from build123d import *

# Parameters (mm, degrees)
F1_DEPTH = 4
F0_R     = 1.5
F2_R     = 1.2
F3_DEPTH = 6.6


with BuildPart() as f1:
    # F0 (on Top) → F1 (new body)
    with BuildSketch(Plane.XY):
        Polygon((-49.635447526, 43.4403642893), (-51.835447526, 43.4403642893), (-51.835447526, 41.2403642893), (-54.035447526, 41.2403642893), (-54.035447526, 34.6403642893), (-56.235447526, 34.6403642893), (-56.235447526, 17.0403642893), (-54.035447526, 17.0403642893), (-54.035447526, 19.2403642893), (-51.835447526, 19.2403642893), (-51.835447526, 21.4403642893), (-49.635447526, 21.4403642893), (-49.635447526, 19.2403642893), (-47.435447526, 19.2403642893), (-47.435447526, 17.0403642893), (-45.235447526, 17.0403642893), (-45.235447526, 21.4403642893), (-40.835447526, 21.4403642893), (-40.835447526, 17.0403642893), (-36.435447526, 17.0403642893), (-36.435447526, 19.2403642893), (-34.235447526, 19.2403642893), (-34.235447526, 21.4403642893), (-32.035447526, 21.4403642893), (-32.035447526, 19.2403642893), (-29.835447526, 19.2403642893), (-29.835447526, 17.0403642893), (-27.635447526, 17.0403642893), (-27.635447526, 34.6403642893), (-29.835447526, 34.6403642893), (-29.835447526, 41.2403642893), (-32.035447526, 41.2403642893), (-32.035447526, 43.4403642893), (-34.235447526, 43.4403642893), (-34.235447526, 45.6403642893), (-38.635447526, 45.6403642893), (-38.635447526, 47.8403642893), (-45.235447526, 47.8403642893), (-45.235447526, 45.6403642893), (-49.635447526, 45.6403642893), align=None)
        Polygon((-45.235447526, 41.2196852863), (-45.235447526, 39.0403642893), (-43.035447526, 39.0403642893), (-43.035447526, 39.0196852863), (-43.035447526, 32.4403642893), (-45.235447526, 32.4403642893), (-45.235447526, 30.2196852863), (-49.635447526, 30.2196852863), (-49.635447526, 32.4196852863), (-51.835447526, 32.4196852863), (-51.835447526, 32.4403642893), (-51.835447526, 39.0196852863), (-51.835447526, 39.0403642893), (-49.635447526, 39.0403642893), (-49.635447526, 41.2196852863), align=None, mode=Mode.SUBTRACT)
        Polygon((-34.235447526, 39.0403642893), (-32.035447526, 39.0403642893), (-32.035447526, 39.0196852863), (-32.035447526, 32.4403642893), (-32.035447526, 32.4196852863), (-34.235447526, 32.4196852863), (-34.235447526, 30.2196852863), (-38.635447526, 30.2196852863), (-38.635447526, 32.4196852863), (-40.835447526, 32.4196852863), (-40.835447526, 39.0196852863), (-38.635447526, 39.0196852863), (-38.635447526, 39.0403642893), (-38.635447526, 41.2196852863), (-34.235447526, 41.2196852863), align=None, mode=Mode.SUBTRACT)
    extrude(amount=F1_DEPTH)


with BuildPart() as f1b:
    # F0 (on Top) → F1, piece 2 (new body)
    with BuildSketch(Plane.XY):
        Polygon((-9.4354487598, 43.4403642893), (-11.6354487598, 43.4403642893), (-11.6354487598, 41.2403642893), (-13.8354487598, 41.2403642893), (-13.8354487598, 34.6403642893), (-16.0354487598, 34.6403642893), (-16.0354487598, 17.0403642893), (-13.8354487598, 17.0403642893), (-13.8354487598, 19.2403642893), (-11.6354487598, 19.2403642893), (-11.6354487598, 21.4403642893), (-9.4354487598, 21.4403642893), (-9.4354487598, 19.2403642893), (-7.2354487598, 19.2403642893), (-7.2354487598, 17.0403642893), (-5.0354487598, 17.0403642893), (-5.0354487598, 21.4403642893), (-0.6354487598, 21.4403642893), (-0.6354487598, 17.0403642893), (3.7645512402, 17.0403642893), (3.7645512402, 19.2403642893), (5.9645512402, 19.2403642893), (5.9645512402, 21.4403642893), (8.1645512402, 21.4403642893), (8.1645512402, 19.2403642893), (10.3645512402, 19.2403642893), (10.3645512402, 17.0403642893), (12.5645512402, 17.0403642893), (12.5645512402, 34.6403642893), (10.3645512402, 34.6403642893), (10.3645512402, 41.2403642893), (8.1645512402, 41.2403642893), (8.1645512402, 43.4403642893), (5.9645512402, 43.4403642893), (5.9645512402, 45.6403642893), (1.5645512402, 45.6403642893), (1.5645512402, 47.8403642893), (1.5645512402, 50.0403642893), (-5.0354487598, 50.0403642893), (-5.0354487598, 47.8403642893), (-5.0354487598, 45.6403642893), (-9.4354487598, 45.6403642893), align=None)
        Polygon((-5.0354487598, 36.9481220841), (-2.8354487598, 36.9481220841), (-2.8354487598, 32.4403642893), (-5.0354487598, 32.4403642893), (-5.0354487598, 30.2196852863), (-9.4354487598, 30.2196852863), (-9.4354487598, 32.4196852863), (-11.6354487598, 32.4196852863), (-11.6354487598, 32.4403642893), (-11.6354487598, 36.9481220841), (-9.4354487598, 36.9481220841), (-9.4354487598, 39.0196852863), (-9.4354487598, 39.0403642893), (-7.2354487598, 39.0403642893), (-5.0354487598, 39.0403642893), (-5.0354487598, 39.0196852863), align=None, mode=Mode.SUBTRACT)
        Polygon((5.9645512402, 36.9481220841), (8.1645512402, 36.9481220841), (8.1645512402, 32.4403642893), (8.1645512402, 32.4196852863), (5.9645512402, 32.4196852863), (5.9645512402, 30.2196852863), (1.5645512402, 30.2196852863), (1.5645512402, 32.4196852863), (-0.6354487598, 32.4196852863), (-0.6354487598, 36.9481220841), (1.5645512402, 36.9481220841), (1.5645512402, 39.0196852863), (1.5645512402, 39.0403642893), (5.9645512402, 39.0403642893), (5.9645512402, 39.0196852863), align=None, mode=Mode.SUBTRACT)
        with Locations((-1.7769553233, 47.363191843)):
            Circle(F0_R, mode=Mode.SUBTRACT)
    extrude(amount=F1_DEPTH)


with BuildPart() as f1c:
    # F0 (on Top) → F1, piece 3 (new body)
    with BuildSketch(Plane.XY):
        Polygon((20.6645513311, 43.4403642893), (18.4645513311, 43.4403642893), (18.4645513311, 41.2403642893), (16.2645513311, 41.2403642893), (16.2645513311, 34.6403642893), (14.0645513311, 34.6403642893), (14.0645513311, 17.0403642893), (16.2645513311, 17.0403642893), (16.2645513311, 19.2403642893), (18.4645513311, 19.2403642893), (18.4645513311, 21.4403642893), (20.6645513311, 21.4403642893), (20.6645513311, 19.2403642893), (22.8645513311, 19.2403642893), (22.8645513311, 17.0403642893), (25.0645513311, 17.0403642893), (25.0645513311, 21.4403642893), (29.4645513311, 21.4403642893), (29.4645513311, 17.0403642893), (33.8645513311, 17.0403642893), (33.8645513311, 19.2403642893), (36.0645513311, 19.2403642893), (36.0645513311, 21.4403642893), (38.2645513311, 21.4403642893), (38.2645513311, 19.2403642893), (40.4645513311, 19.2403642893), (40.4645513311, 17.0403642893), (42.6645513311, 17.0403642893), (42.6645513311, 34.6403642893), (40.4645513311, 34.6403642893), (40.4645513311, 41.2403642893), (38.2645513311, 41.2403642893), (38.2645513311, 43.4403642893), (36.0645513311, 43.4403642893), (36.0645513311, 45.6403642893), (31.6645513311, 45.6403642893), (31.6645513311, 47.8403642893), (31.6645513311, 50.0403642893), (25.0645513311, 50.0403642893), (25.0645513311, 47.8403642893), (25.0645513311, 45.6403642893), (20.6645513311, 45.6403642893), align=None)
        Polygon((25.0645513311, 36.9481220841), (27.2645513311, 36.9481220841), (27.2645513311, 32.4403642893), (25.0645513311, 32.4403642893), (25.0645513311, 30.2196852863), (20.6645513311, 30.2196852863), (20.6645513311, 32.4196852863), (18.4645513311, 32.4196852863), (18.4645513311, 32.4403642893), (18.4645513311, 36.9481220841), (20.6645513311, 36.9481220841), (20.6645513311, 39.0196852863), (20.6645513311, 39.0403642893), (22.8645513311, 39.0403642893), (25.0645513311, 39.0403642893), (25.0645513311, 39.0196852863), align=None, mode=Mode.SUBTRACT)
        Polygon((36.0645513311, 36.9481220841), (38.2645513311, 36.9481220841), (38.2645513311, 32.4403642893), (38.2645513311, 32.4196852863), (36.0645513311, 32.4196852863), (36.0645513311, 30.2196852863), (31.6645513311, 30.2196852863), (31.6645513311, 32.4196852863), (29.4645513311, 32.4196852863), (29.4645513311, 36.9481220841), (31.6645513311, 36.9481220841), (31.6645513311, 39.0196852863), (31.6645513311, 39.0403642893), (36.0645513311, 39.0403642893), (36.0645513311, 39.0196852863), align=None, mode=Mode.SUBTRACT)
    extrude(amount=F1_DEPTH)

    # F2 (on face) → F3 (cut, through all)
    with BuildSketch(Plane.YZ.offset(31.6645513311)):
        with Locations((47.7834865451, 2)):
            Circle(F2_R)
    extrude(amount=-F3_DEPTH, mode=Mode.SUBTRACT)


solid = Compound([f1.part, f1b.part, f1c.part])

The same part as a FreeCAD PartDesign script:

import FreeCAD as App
import Part
import Sketcher
Q = App.Units.Quantity


def add_polygon(sketch, points):
    """Adds a closed chain of lines whose ends are joined by coincident constraints."""
    first, n = sketch.GeometryCount, len(points)
    for a, b in zip(points, points[1:] + points[:1]):
        sketch.addGeometry(Part.LineSegment(App.Vector(*a, 0), App.Vector(*b, 0)), False)
    for i in range(n):
        sketch.addConstraint(Sketcher.Constraint("Coincident", first + i, 2, first + (i + 1) % n, 1))

doc = App.newDocument("Part")
body = doc.addObject("PartDesign::Body", "Body")

# Sketch on XY plane
sketch1 = body.newObject("Sketcher::SketchObject", "Sketch")
sketch1.AttachmentSupport = (doc.getObject("XY_Plane"), [""])
sketch1.MapMode = "FlatFace"
add_polygon(sketch1, [(-49.6, 43.4), (-51.8, 43.4), (-51.8, 41.2), (-54, 41.2), (-54, 34.6), (-56.2, 34.6), (-56.2, 17), (-54, 17), (-54, 19.2), (-51.8, 19.2), (-51.8, 21.4), (-49.6, 21.4), (-49.6, 19.2), (-47.4, 19.2), (-47.4, 17), (-45.2, 17), (-45.2, 21.4), (-40.8, 21.4), (-40.8, 17), (-36.4, 17), (-36.4, 19.2), (-34.2, 19.2), (-34.2, 21.4), (-32, 21.4), (-32, 19.2), (-29.8, 19.2), (-29.8, 17), (-27.6, 17), (-27.6, 34.6), (-29.8, 34.6), (-29.8, 41.2), (-32, 41.2), (-32, 43.4), (-34.2, 43.4), (-34.2, 45.6), (-38.6, 45.6), (-38.6, 47.8), (-45.2, 47.8), (-45.2, 45.6), (-49.6, 45.6)])  # lines 0-39
add_polygon(sketch1, [(-49.6, 41.2), (-45.2, 41.2), (-45.2, 39), (-43, 39), (-43, 32.4), (-45.2, 32.4), (-45.2, 30.2), (-49.6, 30.2), (-49.6, 32.4), (-51.8, 32.4), (-51.8, 39), (-49.6, 39)])  # lines 40-51
add_polygon(sketch1, [(-34.2, 41.2), (-34.2, 39), (-32, 39), (-32, 32.4), (-34.2, 32.4), (-34.2, 30.2), (-38.6, 30.2), (-38.6, 32.4), (-40.8, 32.4), (-40.8, 39), (-38.6, 39), (-38.6, 41.2)])  # lines 52-63
sketch1.addConstraint(Sketcher.Constraint("Horizontal", 0))
sketch1.addConstraint(Sketcher.Constraint("Vertical", 1))
sketch1.addConstraint(Sketcher.Constraint("Horizontal", 2))
sketch1.addConstraint(Sketcher.Constraint("Vertical", 3))
sketch1.addConstraint(Sketcher.Constraint("Horizontal", 4))
sketch1.addConstraint(Sketcher.Constraint("Vertical", 5))
sketch1.addConstraint(Sketcher.Constraint("Horizontal", 6))
sketch1.addConstraint(Sketcher.Constraint("Vertical", 7))
sketch1.addConstraint(Sketcher.Constraint("Horizontal", 8))
sketch1.addConstraint(Sketcher.Constraint("Vertical", 9))
sketch1.addConstraint(Sketcher.Constraint("Horizontal", 10))
sketch1.addConstraint(Sketcher.Constraint("Vertical", 11))
sketch1.addConstraint(Sketcher.Constraint("Horizontal", 12))
sketch1.addConstraint(Sketcher.Constraint("Vertical", 13))
sketch1.addConstraint(Sketcher.Constraint("Horizontal", 14))
sketch1.addConstraint(Sketcher.Constraint("Vertical", 15))
sketch1.addConstraint(Sketcher.Constraint("Horizontal", 16))
sketch1.addConstraint(Sketcher.Constraint("Vertical", 17))
sketch1.addConstraint(Sketcher.Constraint("Horizontal", 18))
sketch1.addConstraint(Sketcher.Constraint("Vertical", 19))
sketch1.addConstraint(Sketcher.Constraint("Horizontal", 20))
sketch1.addConstraint(Sketcher.Constraint("Vertical", 21))
sketch1.addConstraint(Sketcher.Constraint("Horizontal", 22))
sketch1.addConstraint(Sketcher.Constraint("Vertical", 23))
sketch1.addConstraint(Sketcher.Constraint("Horizontal", 24))
sketch1.addConstraint(Sketcher.Constraint("Vertical", 25))
sketch1.addConstraint(Sketcher.Constraint("Horizontal", 26))
sketch1.addConstraint(Sketcher.Constraint("Vertical", 27))
sketch1.addConstraint(Sketcher.Constraint("Horizontal", 28))
sketch1.addConstraint(Sketcher.Constraint("Vertical", 29))
sketch1.addConstraint(Sketcher.Constraint("Horizontal", 30))
sketch1.addConstraint(Sketcher.Constraint("Vertical", 31))
sketch1.addConstraint(Sketcher.Constraint("Horizontal", 32))
sketch1.addConstraint(Sketcher.Constraint("Vertical", 33))
sketch1.addConstraint(Sketcher.Constraint("Horizontal", 34))
sketch1.addConstraint(Sketcher.Constraint("Vertical", 35))
sketch1.addConstraint(Sketcher.Constraint("Horizontal", 36))
sketch1.addConstraint(Sketcher.Constraint("Vertical", 37))
sketch1.addConstraint(Sketcher.Constraint("Horizontal", 38))
sketch1.addConstraint(Sketcher.Constraint("Vertical", 39))
sketch1.addConstraint(Sketcher.Constraint("Horizontal", 40))
sketch1.addConstraint(Sketcher.Constraint("Vertical", 41))
sketch1.addConstraint(Sketcher.Constraint("Horizontal", 42))
sketch1.addConstraint(Sketcher.Constraint("Vertical", 43))
sketch1.addConstraint(Sketcher.Constraint("Horizontal", 44))
sketch1.addConstraint(Sketcher.Constraint("Vertical", 45))
sketch1.addConstraint(Sketcher.Constraint("Horizontal", 46))
sketch1.addConstraint(Sketcher.Constraint("Vertical", 47))
sketch1.addConstraint(Sketcher.Constraint("Horizontal", 48))
sketch1.addConstraint(Sketcher.Constraint("Vertical", 49))
sketch1.addConstraint(Sketcher.Constraint("Horizontal", 50))
sketch1.addConstraint(Sketcher.Constraint("Vertical", 51))
sketch1.addConstraint(Sketcher.Constraint("Vertical", 52))
sketch1.addConstraint(Sketcher.Constraint("Horizontal", 53))
sketch1.addConstraint(Sketcher.Constraint("Vertical", 54))
sketch1.addConstraint(Sketcher.Constraint("Horizontal", 55))
sketch1.addConstraint(Sketcher.Constraint("Vertical", 56))
sketch1.addConstraint(Sketcher.Constraint("Horizontal", 57))
sketch1.addConstraint(Sketcher.Constraint("Vertical", 58))
sketch1.addConstraint(Sketcher.Constraint("Horizontal", 59))
sketch1.addConstraint(Sketcher.Constraint("Vertical", 60))
sketch1.addConstraint(Sketcher.Constraint("Horizontal", 61))
sketch1.addConstraint(Sketcher.Constraint("Vertical", 62))
sketch1.addConstraint(Sketcher.Constraint("Horizontal", 63))
sketch1.addConstraint(Sketcher.Constraint("Horizontal", 8, 2, 11, 2))
sketch1.addConstraint(Sketcher.Constraint("Horizontal", 6, 2, 13, 2))
sketch1.addConstraint(Sketcher.Constraint("Horizontal", 10, 2, 15, 2))
sketch1.addConstraint(Sketcher.Constraint("Horizontal", 14, 2, 17, 2))
sketch1.addConstraint(Sketcher.Constraint("Horizontal", 12, 2, 19, 2))
sketch1.addConstraint(Sketcher.Constraint("Horizontal", 16, 2, 21, 2))
sketch1.addConstraint(Sketcher.Constraint("Horizontal", 20, 2, 23, 2))
sketch1.addConstraint(Sketcher.Constraint("Horizontal", 18, 2, 25, 2))
sketch1.addConstraint(Sketcher.Constraint("Horizontal", 4, 2, 27, 2))
sketch1.addConstraint(Sketcher.Constraint("Horizontal", 2, 2, 29, 2))
sketch1.addConstraint(Sketcher.Constraint("Horizontal", 0, 2, 31, 2))
sketch1.addConstraint(Sketcher.Constraint("Horizontal", 34, 2, 37, 2))
sketch1.addConstraint(Sketcher.Constraint("Horizontal", 42, 2, 49, 2))
sketch1.addConstraint(Sketcher.Constraint("Horizontal", 50, 2, 52, 2))
sketch1.addConstraint(Sketcher.Constraint("Horizontal", 48, 2, 54, 2))
sketch1.addConstraint(Sketcher.Constraint("Horizontal", 46, 2, 56, 2))
sketch1.addConstraint(Sketcher.Constraint("Horizontal", 55, 2, 58, 2))
sketch1.addConstraint(Sketcher.Constraint("Horizontal", 51, 2, 62, 2))
sketch1.addConstraint(Sketcher.Constraint("Vertical", 3, 2, 6, 2))
sketch1.addConstraint(Sketcher.Constraint("Vertical", 1, 2, 8, 2))
sketch1.addConstraint(Sketcher.Constraint("Vertical", 25, 2, 28, 2))
sketch1.addConstraint(Sketcher.Constraint("Vertical", 23, 2, 30, 2))
sketch1.addConstraint(Sketcher.Constraint("Vertical", 21, 2, 32, 2))
sketch1.addConstraint(Sketcher.Constraint("Vertical", 15, 2, 36, 2))
sketch1.addConstraint(Sketcher.Constraint("Vertical", 11, 2, 38, 2))
sketch1.addConstraint(Sketcher.Constraint("Vertical", 37, 2, 40, 2))
sketch1.addConstraint(Sketcher.Constraint("Vertical", 41, 2, 44, 2))
sketch1.addConstraint(Sketcher.Constraint("Vertical", 39, 2, 46, 2))
sketch1.addConstraint(Sketcher.Constraint("Vertical", 9, 2, 48, 2))
sketch1.addConstraint(Sketcher.Constraint("Vertical", 47, 2, 50, 2))
sketch1.addConstraint(Sketcher.Constraint("Vertical", 33, 2, 52, 2))
sketch1.addConstraint(Sketcher.Constraint("Vertical", 31, 2, 53, 2))
sketch1.addConstraint(Sketcher.Constraint("Vertical", 52, 2, 55, 2))
sketch1.addConstraint(Sketcher.Constraint("Vertical", 35, 2, 57, 2))
sketch1.addConstraint(Sketcher.Constraint("Vertical", 17, 2, 59, 2))
sketch1.addConstraint(Sketcher.Constraint("Vertical", 58, 2, 61, 2))
sketch1.addConstraint(Sketcher.Constraint("Equal", 0, 2))
sketch1.addConstraint(Sketcher.Constraint("Equal", 2, 4))
sketch1.addConstraint(Sketcher.Constraint("Equal", 10, 12))
sketch1.addConstraint(Sketcher.Constraint("Equal", 12, 14))
sketch1.addConstraint(Sketcher.Constraint("Equal", 16, 18))
sketch1.addConstraint(Sketcher.Constraint("Equal", 14, 20))
sketch1.addConstraint(Sketcher.Constraint("Equal", 20, 22))
sketch1.addConstraint(Sketcher.Constraint("Equal", 22, 24))
sketch1.addConstraint(Sketcher.Constraint("Equal", 24, 26))
sketch1.addConstraint(Sketcher.Constraint("Equal", 18, 34))
sketch1.addConstraint(Sketcher.Constraint("Equal", 34, 38))
sketch1.addConstraint(Sketcher.Constraint("Equal", 32, 42))
sketch1.addConstraint(Sketcher.Constraint("Equal", 61, 1))
sketch1.addConstraint(Sketcher.Constraint("Equal", 36, 3))
sketch1.addConstraint(Sketcher.Constraint("Equal", 1, 7))
sketch1.addConstraint(Sketcher.Constraint("Equal", 7, 9))
sketch1.addConstraint(Sketcher.Constraint("Equal", 31, 33))
sketch1.addConstraint(Sketcher.Constraint("Equal", 33, 35))
sketch1.addConstraint(Sketcher.Constraint("Equal", 29, 43))
sketch1.addConstraint(Sketcher.Constraint("Equal", 39, 47))
sketch1.addConstraint(Sketcher.Constraint("Equal", 43, 60))
sketch1.addConstraint(Sketcher.Constraint("Equal", 58, 62))
sketch1.addConstraint(Sketcher.Constraint("DistanceX", 0, 2, 0, 1, Q("2.2 mm")))
sketch1.addConstraint(Sketcher.Constraint("DistanceY", 5, 2, 5, 1, Q("17.6 mm")))
sketch1.addConstraint(Sketcher.Constraint("DistanceY", 41, 2, 41, 1, Q("2.179321 mm")))
sketch1.addConstraint(Sketcher.Constraint("DistanceX", 0, 2, -1, 1, Q("51.835448 mm")))
sketch1.addConstraint(Sketcher.Constraint("DistanceY", -1, 1, 0, 2, Q("43.440364 mm")))
sketch1.addConstraint(Sketcher.Constraint("DistanceY", -1, 1, 40, 2, Q("41.219685 mm")))
pad1 = body.newObject("PartDesign::Pad", "Pad")
pad1.Profile = sketch1
pad1.Length = 4
body2 = doc.addObject("PartDesign::Body", "Body001")

# Sketch on XY plane
sketch2 = body2.newObject("Sketcher::SketchObject", "Sketch001")
sketch2.AttachmentSupport = (doc.getObject("XY_Plane001"), [""])
sketch2.MapMode = "FlatFace"
add_polygon(sketch2, [(-9.4, 43.4), (-11.6, 43.4), (-11.6, 41.2), (-13.8, 41.2), (-13.8, 34.6), (-16, 34.6), (-16, 17), (-13.8, 17), (-13.8, 19.2), (-11.6, 19.2), (-11.6, 21.4), (-9.4, 21.4), (-9.4, 19.2), (-7.2, 19.2), (-7.2, 17), (-5, 17), (-5, 21.4), (-0.6, 21.4), (-0.6, 17), (3.8, 17), (3.8, 19.2), (6, 19.2), (6, 21.4), (8.2, 21.4), (8.2, 19.2), (10.4, 19.2), (10.4, 17), (12.6, 17), (12.6, 34.6), (10.4, 34.6), (10.4, 41.2), (8.2, 41.2), (8.2, 43.4), (6, 43.4), (6, 45.6), (1.6, 45.6), (1.6, 50), (-5, 50), (-5, 45.6), (-9.4, 45.6)])  # lines 0-39
add_polygon(sketch2, [(-5, 39), (-5, 36.9), (-2.8, 36.9), (-2.8, 32.4), (-5, 32.4), (-5, 30.2), (-9.4, 30.2), (-9.4, 32.4), (-11.6, 32.4), (-11.6, 36.9), (-9.4, 36.9), (-9.4, 39)])  # lines 40-51
add_polygon(sketch2, [(6, 39), (6, 36.9), (8.2, 36.9), (8.2, 32.4), (6, 32.4), (6, 30.2), (1.6, 30.2), (1.6, 32.4), (-0.6, 32.4), (-0.6, 36.9), (1.6, 36.9), (1.6, 39)])  # lines 52-63
sketch2.addGeometry(Part.Circle(App.Vector(-1.8, 47.4, 0), App.Vector(0, 0, 1), 1.5), False)  # 64
sketch2.addConstraint(Sketcher.Constraint("Horizontal", 0))
sketch2.addConstraint(Sketcher.Constraint("Vertical", 1))
sketch2.addConstraint(Sketcher.Constraint("Horizontal", 2))
sketch2.addConstraint(Sketcher.Constraint("Vertical", 3))
sketch2.addConstraint(Sketcher.Constraint("Horizontal", 4))
sketch2.addConstraint(Sketcher.Constraint("Vertical", 5))
sketch2.addConstraint(Sketcher.Constraint("Horizontal", 6))
sketch2.addConstraint(Sketcher.Constraint("Vertical", 7))
sketch2.addConstraint(Sketcher.Constraint("Horizontal", 8))
sketch2.addConstraint(Sketcher.Constraint("Vertical", 9))
sketch2.addConstraint(Sketcher.Constraint("Horizontal", 10))
sketch2.addConstraint(Sketcher.Constraint("Vertical", 11))
sketch2.addConstraint(Sketcher.Constraint("Horizontal", 12))
sketch2.addConstraint(Sketcher.Constraint("Vertical", 13))
sketch2.addConstraint(Sketcher.Constraint("Horizontal", 14))
sketch2.addConstraint(Sketcher.Constraint("Vertical", 15))
sketch2.addConstraint(Sketcher.Constraint("Horizontal", 16))
sketch2.addConstraint(Sketcher.Constraint("Vertical", 17))
sketch2.addConstraint(Sketcher.Constraint("Horizontal", 18))
sketch2.addConstraint(Sketcher.Constraint("Vertical", 19))
sketch2.addConstraint(Sketcher.Constraint("Horizontal", 20))
sketch2.addConstraint(Sketcher.Constraint("Vertical", 21))
sketch2.addConstraint(Sketcher.Constraint("Horizontal", 22))
sketch2.addConstraint(Sketcher.Constraint("Vertical", 23))
sketch2.addConstraint(Sketcher.Constraint("Horizontal", 24))
sketch2.addConstraint(Sketcher.Constraint("Vertical", 25))
sketch2.addConstraint(Sketcher.Constraint("Horizontal", 26))
sketch2.addConstraint(Sketcher.Constraint("Vertical", 27))
sketch2.addConstraint(Sketcher.Constraint("Horizontal", 28))
sketch2.addConstraint(Sketcher.Constraint("Vertical", 29))
sketch2.addConstraint(Sketcher.Constraint("Horizontal", 30))
sketch2.addConstraint(Sketcher.Constraint("Vertical", 31))
sketch2.addConstraint(Sketcher.Constraint("Horizontal", 32))
sketch2.addConstraint(Sketcher.Constraint("Vertical", 33))
sketch2.addConstraint(Sketcher.Constraint("Horizontal", 34))
sketch2.addConstraint(Sketcher.Constraint("Vertical", 35))
sketch2.addConstraint(Sketcher.Constraint("Horizontal", 36))
sketch2.addConstraint(Sketcher.Constraint("Vertical", 37))
sketch2.addConstraint(Sketcher.Constraint("Horizontal", 38))
sketch2.addConstraint(Sketcher.Constraint("Vertical", 39))
sketch2.addConstraint(Sketcher.Constraint("Vertical", 40))
sketch2.addConstraint(Sketcher.Constraint("Horizontal", 41))
sketch2.addConstraint(Sketcher.Constraint("Vertical", 42))
sketch2.addConstraint(Sketcher.Constraint("Horizontal", 43))
sketch2.addConstraint(Sketcher.Constraint("Vertical", 44))
sketch2.addConstraint(Sketcher.Constraint("Horizontal", 45))
sketch2.addConstraint(Sketcher.Constraint("Vertical", 46))
sketch2.addConstraint(Sketcher.Constraint("Horizontal", 47))
sketch2.addConstraint(Sketcher.Constraint("Vertical", 48))
sketch2.addConstraint(Sketcher.Constraint("Horizontal", 49))
sketch2.addConstraint(Sketcher.Constraint("Vertical", 50))
sketch2.addConstraint(Sketcher.Constraint("Horizontal", 51))
sketch2.addConstraint(Sketcher.Constraint("Vertical", 52))
sketch2.addConstraint(Sketcher.Constraint("Horizontal", 53))
sketch2.addConstraint(Sketcher.Constraint("Vertical", 54))
sketch2.addConstraint(Sketcher.Constraint("Horizontal", 55))
sketch2.addConstraint(Sketcher.Constraint("Vertical", 56))
sketch2.addConstraint(Sketcher.Constraint("Horizontal", 57))
sketch2.addConstraint(Sketcher.Constraint("Vertical", 58))
sketch2.addConstraint(Sketcher.Constraint("Horizontal", 59))
sketch2.addConstraint(Sketcher.Constraint("Vertical", 60))
sketch2.addConstraint(Sketcher.Constraint("Horizontal", 61))
sketch2.addConstraint(Sketcher.Constraint("Vertical", 62))
sketch2.addConstraint(Sketcher.Constraint("Horizontal", 63))
sketch2.addConstraint(Sketcher.Constraint("Horizontal", 8, 2, 11, 2))
sketch2.addConstraint(Sketcher.Constraint("Horizontal", 6, 2, 13, 2))
sketch2.addConstraint(Sketcher.Constraint("Horizontal", 10, 2, 15, 2))
sketch2.addConstraint(Sketcher.Constraint("Horizontal", 14, 2, 17, 2))
sketch2.addConstraint(Sketcher.Constraint("Horizontal", 12, 2, 19, 2))
sketch2.addConstraint(Sketcher.Constraint("Horizontal", 16, 2, 21, 2))
sketch2.addConstraint(Sketcher.Constraint("Horizontal", 20, 2, 23, 2))
sketch2.addConstraint(Sketcher.Constraint("Horizontal", 18, 2, 25, 2))
sketch2.addConstraint(Sketcher.Constraint("Horizontal", 4, 2, 27, 2))
sketch2.addConstraint(Sketcher.Constraint("Horizontal", 2, 2, 29, 2))
sketch2.addConstraint(Sketcher.Constraint("Horizontal", 0, 2, 31, 2))
sketch2.addConstraint(Sketcher.Constraint("Horizontal", 34, 2, 37, 2))
sketch2.addConstraint(Sketcher.Constraint("Horizontal", 41, 2, 48, 2))
sketch2.addConstraint(Sketcher.Constraint("Horizontal", 49, 2, 52, 2))
sketch2.addConstraint(Sketcher.Constraint("Horizontal", 47, 2, 54, 2))
sketch2.addConstraint(Sketcher.Constraint("Horizontal", 45, 2, 56, 2))
sketch2.addConstraint(Sketcher.Constraint("Horizontal", 55, 2, 58, 2))
sketch2.addConstraint(Sketcher.Constraint("Horizontal", 53, 2, 60, 2))
sketch2.addConstraint(Sketcher.Constraint("Horizontal", 51, 2, 62, 2))
sketch2.addConstraint(Sketcher.Constraint("Vertical", 3, 2, 6, 2))
sketch2.addConstraint(Sketcher.Constraint("Vertical", 1, 2, 8, 2))
sketch2.addConstraint(Sketcher.Constraint("Vertical", 25, 2, 28, 2))
sketch2.addConstraint(Sketcher.Constraint("Vertical", 23, 2, 30, 2))
sketch2.addConstraint(Sketcher.Constraint("Vertical", 21, 2, 32, 2))
sketch2.addConstraint(Sketcher.Constraint("Vertical", 15, 2, 36, 2))
sketch2.addConstraint(Sketcher.Constraint("Vertical", 11, 2, 38, 2))
sketch2.addConstraint(Sketcher.Constraint("Vertical", 37, 2, 40, 2))
sketch2.addConstraint(Sketcher.Constraint("Vertical", 40, 2, 43, 2))
sketch2.addConstraint(Sketcher.Constraint("Vertical", 39, 2, 45, 2))
sketch2.addConstraint(Sketcher.Constraint("Vertical", 9, 2, 47, 2))
sketch2.addConstraint(Sketcher.Constraint("Vertical", 46, 2, 49, 2))
sketch2.addConstraint(Sketcher.Constraint("Vertical", 33, 2, 52, 2))
sketch2.addConstraint(Sketcher.Constraint("Vertical", 31, 2, 53, 2))
sketch2.addConstraint(Sketcher.Constraint("Vertical", 52, 2, 55, 2))
sketch2.addConstraint(Sketcher.Constraint("Vertical", 35, 2, 57, 2))
sketch2.addConstraint(Sketcher.Constraint("Vertical", 17, 2, 59, 2))
sketch2.addConstraint(Sketcher.Constraint("Vertical", 58, 2, 61, 2))
sketch2.addConstraint(Sketcher.Constraint("Equal", 0, 2))
sketch2.addConstraint(Sketcher.Constraint("Equal", 2, 4))
sketch2.addConstraint(Sketcher.Constraint("Equal", 10, 12))
sketch2.addConstraint(Sketcher.Constraint("Equal", 12, 14))
sketch2.addConstraint(Sketcher.Constraint("Equal", 16, 18))
sketch2.addConstraint(Sketcher.Constraint("Equal", 14, 20))
sketch2.addConstraint(Sketcher.Constraint("Equal", 20, 22))
sketch2.addConstraint(Sketcher.Constraint("Equal", 22, 24))
sketch2.addConstraint(Sketcher.Constraint("Equal", 24, 26))
sketch2.addConstraint(Sketcher.Constraint("Equal", 18, 34))
sketch2.addConstraint(Sketcher.Constraint("Equal", 34, 38))
sketch2.addConstraint(Sketcher.Constraint("Equal", 32, 41))
sketch2.addConstraint(Sketcher.Constraint("Equal", 61, 1))
sketch2.addConstraint(Sketcher.Constraint("Equal", 36, 3))
sketch2.addConstraint(Sketcher.Constraint("Equal", 1, 7))
sketch2.addConstraint(Sketcher.Constraint("Equal", 7, 9))
sketch2.addConstraint(Sketcher.Constraint("Equal", 31, 33))
sketch2.addConstraint(Sketcher.Constraint("Equal", 17, 35))
sketch2.addConstraint(Sketcher.Constraint("Equal", 39, 46))
sketch2.addConstraint(Sketcher.Constraint("Diameter", 64, Q("3 mm")))
sketch2.addConstraint(Sketcher.Constraint("DistanceX", 0, 2, 0, 1, Q("2.2 mm")))
sketch2.addConstraint(Sketcher.Constraint("DistanceY", 5, 2, 5, 1, Q("17.6 mm")))
sketch2.addConstraint(Sketcher.Constraint("DistanceY", 44, 2, 44, 1, Q("2.220679 mm")))
sketch2.addConstraint(Sketcher.Constraint("DistanceY", 40, 2, 40, 1, Q("2.092242 mm")))
sketch2.addConstraint(Sketcher.Constraint("DistanceY", 42, 2, 42, 1, Q("4.507758 mm")))
sketch2.addConstraint(Sketcher.Constraint("DistanceY", -1, 1, 64, 3, Q("47.363192 mm")))
sketch2.addConstraint(Sketcher.Constraint("DistanceX", 0, 2, -1, 1, Q("11.635449 mm")))
sketch2.addConstraint(Sketcher.Constraint("DistanceX", 64, 3, -1, 1, Q("1.776955 mm")))
sketch2.addConstraint(Sketcher.Constraint("DistanceY", -1, 1, 0, 2, Q("43.440364 mm")))
sketch2.addConstraint(Sketcher.Constraint("DistanceY", -1, 1, 40, 2, Q("36.948122 mm")))
pad2 = body2.newObject("PartDesign::Pad", "Pad001")
pad2.Profile = sketch2
pad2.Length = 4
body3 = doc.addObject("PartDesign::Body", "Body002")

# Sketch on XY plane
sketch3 = body3.newObject("Sketcher::SketchObject", "Sketch002")
sketch3.AttachmentSupport = (doc.getObject("XY_Plane002"), [""])
sketch3.MapMode = "FlatFace"
add_polygon(sketch3, [(20.7, 43.4), (18.5, 43.4), (18.5, 41.2), (16.3, 41.2), (16.3, 34.6), (14.1, 34.6), (14.1, 17), (16.3, 17), (16.3, 19.2), (18.5, 19.2), (18.5, 21.4), (20.7, 21.4), (20.7, 19.2), (22.9, 19.2), (22.9, 17), (25.1, 17), (25.1, 21.4), (29.5, 21.4), (29.5, 17), (33.9, 17), (33.9, 19.2), (36.1, 19.2), (36.1, 21.4), (38.3, 21.4), (38.3, 19.2), (40.5, 19.2), (40.5, 17), (42.7, 17), (42.7, 34.6), (40.5, 34.6), (40.5, 41.2), (38.3, 41.2), (38.3, 43.4), (36.1, 43.4), (36.1, 45.6), (31.7, 45.6), (31.7, 50), (25.1, 50), (25.1, 45.6), (20.7, 45.6)])  # lines 0-39
add_polygon(sketch3, [(25.1, 39), (25.1, 36.9), (27.3, 36.9), (27.3, 32.4), (25.1, 32.4), (25.1, 30.2), (20.7, 30.2), (20.7, 32.4), (18.5, 32.4), (18.5, 36.9), (20.7, 36.9), (20.7, 39)])  # lines 40-51
add_polygon(sketch3, [(36.1, 39), (36.1, 36.9), (38.3, 36.9), (38.3, 32.4), (36.1, 32.4), (36.1, 30.2), (31.7, 30.2), (31.7, 32.4), (29.5, 32.4), (29.5, 36.9), (31.7, 36.9), (31.7, 39)])  # lines 52-63
sketch3.addConstraint(Sketcher.Constraint("Horizontal", 0))
sketch3.addConstraint(Sketcher.Constraint("Vertical", 1))
sketch3.addConstraint(Sketcher.Constraint("Horizontal", 2))
sketch3.addConstraint(Sketcher.Constraint("Vertical", 3))
sketch3.addConstraint(Sketcher.Constraint("Horizontal", 4))
sketch3.addConstraint(Sketcher.Constraint("Vertical", 5))
sketch3.addConstraint(Sketcher.Constraint("Horizontal", 6))
sketch3.addConstraint(Sketcher.Constraint("Vertical", 7))
sketch3.addConstraint(Sketcher.Constraint("Horizontal", 8))
sketch3.addConstraint(Sketcher.Constraint("Vertical", 9))
sketch3.addConstraint(Sketcher.Constraint("Horizontal", 10))
sketch3.addConstraint(Sketcher.Constraint("Vertical", 11))
sketch3.addConstraint(Sketcher.Constraint("Horizontal", 12))
sketch3.addConstraint(Sketcher.Constraint("Vertical", 13))
sketch3.addConstraint(Sketcher.Constraint("Horizontal", 14))
sketch3.addConstraint(Sketcher.Constraint("Vertical", 15))
sketch3.addConstraint(Sketcher.Constraint("Horizontal", 16))
sketch3.addConstraint(Sketcher.Constraint("Vertical", 17))
sketch3.addConstraint(Sketcher.Constraint("Horizontal", 18))
sketch3.addConstraint(Sketcher.Constraint("Vertical", 19))
sketch3.addConstraint(Sketcher.Constraint("Horizontal", 20))
sketch3.addConstraint(Sketcher.Constraint("Vertical", 21))
sketch3.addConstraint(Sketcher.Constraint("Horizontal", 22))
sketch3.addConstraint(Sketcher.Constraint("Vertical", 23))
sketch3.addConstraint(Sketcher.Constraint("Horizontal", 24))
sketch3.addConstraint(Sketcher.Constraint("Vertical", 25))
sketch3.addConstraint(Sketcher.Constraint("Horizontal", 26))
sketch3.addConstraint(Sketcher.Constraint("Vertical", 27))
sketch3.addConstraint(Sketcher.Constraint("Horizontal", 28))
sketch3.addConstraint(Sketcher.Constraint("Vertical", 29))
sketch3.addConstraint(Sketcher.Constraint("Horizontal", 30))
sketch3.addConstraint(Sketcher.Constraint("Vertical", 31))
sketch3.addConstraint(Sketcher.Constraint("Horizontal", 32))
sketch3.addConstraint(Sketcher.Constraint("Vertical", 33))
sketch3.addConstraint(Sketcher.Constraint("Horizontal", 34))
sketch3.addConstraint(Sketcher.Constraint("Vertical", 35))
sketch3.addConstraint(Sketcher.Constraint("Horizontal", 36))
sketch3.addConstraint(Sketcher.Constraint("Vertical", 37))
sketch3.addConstraint(Sketcher.Constraint("Horizontal", 38))
sketch3.addConstraint(Sketcher.Constraint("Vertical", 39))
sketch3.addConstraint(Sketcher.Constraint("Vertical", 40))
sketch3.addConstraint(Sketcher.Constraint("Horizontal", 41))
sketch3.addConstraint(Sketcher.Constraint("Vertical", 42))
sketch3.addConstraint(Sketcher.Constraint("Horizontal", 43))
sketch3.addConstraint(Sketcher.Constraint("Vertical", 44))
sketch3.addConstraint(Sketcher.Constraint("Horizontal", 45))
sketch3.addConstraint(Sketcher.Constraint("Vertical", 46))
sketch3.addConstraint(Sketcher.Constraint("Horizontal", 47))
sketch3.addConstraint(Sketcher.Constraint("Vertical", 48))
sketch3.addConstraint(Sketcher.Constraint("Horizontal", 49))
sketch3.addConstraint(Sketcher.Constraint("Vertical", 50))
sketch3.addConstraint(Sketcher.Constraint("Horizontal", 51))
sketch3.addConstraint(Sketcher.Constraint("Vertical", 52))
sketch3.addConstraint(Sketcher.Constraint("Horizontal", 53))
sketch3.addConstraint(Sketcher.Constraint("Vertical", 54))
sketch3.addConstraint(Sketcher.Constraint("Horizontal", 55))
sketch3.addConstraint(Sketcher.Constraint("Vertical", 56))
sketch3.addConstraint(Sketcher.Constraint("Horizontal", 57))
sketch3.addConstraint(Sketcher.Constraint("Vertical", 58))
sketch3.addConstraint(Sketcher.Constraint("Horizontal", 59))
sketch3.addConstraint(Sketcher.Constraint("Vertical", 60))
sketch3.addConstraint(Sketcher.Constraint("Horizontal", 61))
sketch3.addConstraint(Sketcher.Constraint("Vertical", 62))
sketch3.addConstraint(Sketcher.Constraint("Horizontal", 63))
sketch3.addConstraint(Sketcher.Constraint("Horizontal", 8, 2, 11, 2))
sketch3.addConstraint(Sketcher.Constraint("Horizontal", 6, 2, 13, 2))
sketch3.addConstraint(Sketcher.Constraint("Horizontal", 10, 2, 15, 2))
sketch3.addConstraint(Sketcher.Constraint("Horizontal", 14, 2, 17, 2))
sketch3.addConstraint(Sketcher.Constraint("Horizontal", 12, 2, 19, 2))
sketch3.addConstraint(Sketcher.Constraint("Horizontal", 16, 2, 21, 2))
sketch3.addConstraint(Sketcher.Constraint("Horizontal", 20, 2, 23, 2))
sketch3.addConstraint(Sketcher.Constraint("Horizontal", 18, 2, 25, 2))
sketch3.addConstraint(Sketcher.Constraint("Horizontal", 4, 2, 27, 2))
sketch3.addConstraint(Sketcher.Constraint("Horizontal", 2, 2, 29, 2))
sketch3.addConstraint(Sketcher.Constraint("Horizontal", 0, 2, 31, 2))
sketch3.addConstraint(Sketcher.Constraint("Horizontal", 34, 2, 37, 2))
sketch3.addConstraint(Sketcher.Constraint("Horizontal", 41, 2, 48, 2))
sketch3.addConstraint(Sketcher.Constraint("Horizontal", 49, 2, 52, 2))
sketch3.addConstraint(Sketcher.Constraint("Horizontal", 47, 2, 54, 2))
sketch3.addConstraint(Sketcher.Constraint("Horizontal", 45, 2, 56, 2))
sketch3.addConstraint(Sketcher.Constraint("Horizontal", 55, 2, 58, 2))
sketch3.addConstraint(Sketcher.Constraint("Horizontal", 53, 2, 60, 2))
sketch3.addConstraint(Sketcher.Constraint("Horizontal", 51, 2, 62, 2))
sketch3.addConstraint(Sketcher.Constraint("Vertical", 3, 2, 6, 2))
sketch3.addConstraint(Sketcher.Constraint("Vertical", 1, 2, 8, 2))
sketch3.addConstraint(Sketcher.Constraint("Vertical", 25, 2, 28, 2))
sketch3.addConstraint(Sketcher.Constraint("Vertical", 23, 2, 30, 2))
sketch3.addConstraint(Sketcher.Constraint("Vertical", 21, 2, 32, 2))
sketch3.addConstraint(Sketcher.Constraint("Vertical", 15, 2, 36, 2))
sketch3.addConstraint(Sketcher.Constraint("Vertical", 11, 2, 38, 2))
sketch3.addConstraint(Sketcher.Constraint("Vertical", 37, 2, 40, 2))
sketch3.addConstraint(Sketcher.Constraint("Vertical", 40, 2, 43, 2))
sketch3.addConstraint(Sketcher.Constraint("Vertical", 39, 2, 45, 2))
sketch3.addConstraint(Sketcher.Constraint("Vertical", 9, 2, 47, 2))
sketch3.addConstraint(Sketcher.Constraint("Vertical", 46, 2, 49, 2))
sketch3.addConstraint(Sketcher.Constraint("Vertical", 33, 2, 52, 2))
sketch3.addConstraint(Sketcher.Constraint("Vertical", 31, 2, 53, 2))
sketch3.addConstraint(Sketcher.Constraint("Vertical", 52, 2, 55, 2))
sketch3.addConstraint(Sketcher.Constraint("Vertical", 35, 2, 57, 2))
sketch3.addConstraint(Sketcher.Constraint("Vertical", 17, 2, 59, 2))
sketch3.addConstraint(Sketcher.Constraint("Vertical", 58, 2, 61, 2))
sketch3.addConstraint(Sketcher.Constraint("Equal", 0, 2))
sketch3.addConstraint(Sketcher.Constraint("Equal", 2, 4))
sketch3.addConstraint(Sketcher.Constraint("Equal", 10, 12))
sketch3.addConstraint(Sketcher.Constraint("Equal", 12, 14))
sketch3.addConstraint(Sketcher.Constraint("Equal", 16, 18))
sketch3.addConstraint(Sketcher.Constraint("Equal", 14, 20))
sketch3.addConstraint(Sketcher.Constraint("Equal", 20, 22))
sketch3.addConstraint(Sketcher.Constraint("Equal", 22, 24))
sketch3.addConstraint(Sketcher.Constraint("Equal", 24, 26))
sketch3.addConstraint(Sketcher.Constraint("Equal", 18, 34))
sketch3.addConstraint(Sketcher.Constraint("Equal", 34, 38))
sketch3.addConstraint(Sketcher.Constraint("Equal", 32, 41))
sketch3.addConstraint(Sketcher.Constraint("Equal", 61, 1))
sketch3.addConstraint(Sketcher.Constraint("Equal", 36, 3))
sketch3.addConstraint(Sketcher.Constraint("Equal", 1, 7))
sketch3.addConstraint(Sketcher.Constraint("Equal", 7, 9))
sketch3.addConstraint(Sketcher.Constraint("Equal", 31, 33))
sketch3.addConstraint(Sketcher.Constraint("Equal", 17, 35))
sketch3.addConstraint(Sketcher.Constraint("Equal", 39, 46))
sketch3.addConstraint(Sketcher.Constraint("DistanceX", 0, 2, 0, 1, Q("2.2 mm")))
sketch3.addConstraint(Sketcher.Constraint("DistanceY", 5, 2, 5, 1, Q("17.6 mm")))
sketch3.addConstraint(Sketcher.Constraint("DistanceY", 44, 2, 44, 1, Q("2.220679 mm")))
sketch3.addConstraint(Sketcher.Constraint("DistanceY", 40, 2, 40, 1, Q("2.092242 mm")))
sketch3.addConstraint(Sketcher.Constraint("DistanceY", 42, 2, 42, 1, Q("4.507758 mm")))
sketch3.addConstraint(Sketcher.Constraint("DistanceX", -1, 1, 0, 2, Q("18.464551 mm")))
sketch3.addConstraint(Sketcher.Constraint("DistanceY", -1, 1, 0, 2, Q("43.440364 mm")))
sketch3.addConstraint(Sketcher.Constraint("DistanceY", -1, 1, 40, 2, Q("36.948122 mm")))
pad3 = body3.newObject("PartDesign::Pad", "Pad002")
pad3.Profile = sketch3
pad3.Length = 4

# Sketch on YZ plane
sketch4 = body3.newObject("Sketcher::SketchObject", "Sketch003")
sketch4.AttachmentSupport = (doc.getObject("YZ_Plane002"), [""])
sketch4.MapMode = "FlatFace"
sketch4.AttachmentOffset = App.Placement(App.Vector(0, 0, 31.664551), App.Rotation())
sketch4.addGeometry(Part.Circle(App.Vector(47.8, 2, 0), App.Vector(0, 0, 1), 1.2), False)
sketch4.addConstraint(Sketcher.Constraint("Diameter", 0, Q("2.4 mm")))
sketch4.addConstraint(Sketcher.Constraint("DistanceY", -1, 1, 0, 3, Q("2 mm")))
sketch4.addConstraint(Sketcher.Constraint("DistanceX", -1, 1, 0, 3, Q("47.783487 mm")))
pocket1 = body3.newObject("PartDesign::Pocket", "Pocket")
pocket1.Profile = sketch4
pocket1.Type = "ThroughAll"

doc.recompute()
